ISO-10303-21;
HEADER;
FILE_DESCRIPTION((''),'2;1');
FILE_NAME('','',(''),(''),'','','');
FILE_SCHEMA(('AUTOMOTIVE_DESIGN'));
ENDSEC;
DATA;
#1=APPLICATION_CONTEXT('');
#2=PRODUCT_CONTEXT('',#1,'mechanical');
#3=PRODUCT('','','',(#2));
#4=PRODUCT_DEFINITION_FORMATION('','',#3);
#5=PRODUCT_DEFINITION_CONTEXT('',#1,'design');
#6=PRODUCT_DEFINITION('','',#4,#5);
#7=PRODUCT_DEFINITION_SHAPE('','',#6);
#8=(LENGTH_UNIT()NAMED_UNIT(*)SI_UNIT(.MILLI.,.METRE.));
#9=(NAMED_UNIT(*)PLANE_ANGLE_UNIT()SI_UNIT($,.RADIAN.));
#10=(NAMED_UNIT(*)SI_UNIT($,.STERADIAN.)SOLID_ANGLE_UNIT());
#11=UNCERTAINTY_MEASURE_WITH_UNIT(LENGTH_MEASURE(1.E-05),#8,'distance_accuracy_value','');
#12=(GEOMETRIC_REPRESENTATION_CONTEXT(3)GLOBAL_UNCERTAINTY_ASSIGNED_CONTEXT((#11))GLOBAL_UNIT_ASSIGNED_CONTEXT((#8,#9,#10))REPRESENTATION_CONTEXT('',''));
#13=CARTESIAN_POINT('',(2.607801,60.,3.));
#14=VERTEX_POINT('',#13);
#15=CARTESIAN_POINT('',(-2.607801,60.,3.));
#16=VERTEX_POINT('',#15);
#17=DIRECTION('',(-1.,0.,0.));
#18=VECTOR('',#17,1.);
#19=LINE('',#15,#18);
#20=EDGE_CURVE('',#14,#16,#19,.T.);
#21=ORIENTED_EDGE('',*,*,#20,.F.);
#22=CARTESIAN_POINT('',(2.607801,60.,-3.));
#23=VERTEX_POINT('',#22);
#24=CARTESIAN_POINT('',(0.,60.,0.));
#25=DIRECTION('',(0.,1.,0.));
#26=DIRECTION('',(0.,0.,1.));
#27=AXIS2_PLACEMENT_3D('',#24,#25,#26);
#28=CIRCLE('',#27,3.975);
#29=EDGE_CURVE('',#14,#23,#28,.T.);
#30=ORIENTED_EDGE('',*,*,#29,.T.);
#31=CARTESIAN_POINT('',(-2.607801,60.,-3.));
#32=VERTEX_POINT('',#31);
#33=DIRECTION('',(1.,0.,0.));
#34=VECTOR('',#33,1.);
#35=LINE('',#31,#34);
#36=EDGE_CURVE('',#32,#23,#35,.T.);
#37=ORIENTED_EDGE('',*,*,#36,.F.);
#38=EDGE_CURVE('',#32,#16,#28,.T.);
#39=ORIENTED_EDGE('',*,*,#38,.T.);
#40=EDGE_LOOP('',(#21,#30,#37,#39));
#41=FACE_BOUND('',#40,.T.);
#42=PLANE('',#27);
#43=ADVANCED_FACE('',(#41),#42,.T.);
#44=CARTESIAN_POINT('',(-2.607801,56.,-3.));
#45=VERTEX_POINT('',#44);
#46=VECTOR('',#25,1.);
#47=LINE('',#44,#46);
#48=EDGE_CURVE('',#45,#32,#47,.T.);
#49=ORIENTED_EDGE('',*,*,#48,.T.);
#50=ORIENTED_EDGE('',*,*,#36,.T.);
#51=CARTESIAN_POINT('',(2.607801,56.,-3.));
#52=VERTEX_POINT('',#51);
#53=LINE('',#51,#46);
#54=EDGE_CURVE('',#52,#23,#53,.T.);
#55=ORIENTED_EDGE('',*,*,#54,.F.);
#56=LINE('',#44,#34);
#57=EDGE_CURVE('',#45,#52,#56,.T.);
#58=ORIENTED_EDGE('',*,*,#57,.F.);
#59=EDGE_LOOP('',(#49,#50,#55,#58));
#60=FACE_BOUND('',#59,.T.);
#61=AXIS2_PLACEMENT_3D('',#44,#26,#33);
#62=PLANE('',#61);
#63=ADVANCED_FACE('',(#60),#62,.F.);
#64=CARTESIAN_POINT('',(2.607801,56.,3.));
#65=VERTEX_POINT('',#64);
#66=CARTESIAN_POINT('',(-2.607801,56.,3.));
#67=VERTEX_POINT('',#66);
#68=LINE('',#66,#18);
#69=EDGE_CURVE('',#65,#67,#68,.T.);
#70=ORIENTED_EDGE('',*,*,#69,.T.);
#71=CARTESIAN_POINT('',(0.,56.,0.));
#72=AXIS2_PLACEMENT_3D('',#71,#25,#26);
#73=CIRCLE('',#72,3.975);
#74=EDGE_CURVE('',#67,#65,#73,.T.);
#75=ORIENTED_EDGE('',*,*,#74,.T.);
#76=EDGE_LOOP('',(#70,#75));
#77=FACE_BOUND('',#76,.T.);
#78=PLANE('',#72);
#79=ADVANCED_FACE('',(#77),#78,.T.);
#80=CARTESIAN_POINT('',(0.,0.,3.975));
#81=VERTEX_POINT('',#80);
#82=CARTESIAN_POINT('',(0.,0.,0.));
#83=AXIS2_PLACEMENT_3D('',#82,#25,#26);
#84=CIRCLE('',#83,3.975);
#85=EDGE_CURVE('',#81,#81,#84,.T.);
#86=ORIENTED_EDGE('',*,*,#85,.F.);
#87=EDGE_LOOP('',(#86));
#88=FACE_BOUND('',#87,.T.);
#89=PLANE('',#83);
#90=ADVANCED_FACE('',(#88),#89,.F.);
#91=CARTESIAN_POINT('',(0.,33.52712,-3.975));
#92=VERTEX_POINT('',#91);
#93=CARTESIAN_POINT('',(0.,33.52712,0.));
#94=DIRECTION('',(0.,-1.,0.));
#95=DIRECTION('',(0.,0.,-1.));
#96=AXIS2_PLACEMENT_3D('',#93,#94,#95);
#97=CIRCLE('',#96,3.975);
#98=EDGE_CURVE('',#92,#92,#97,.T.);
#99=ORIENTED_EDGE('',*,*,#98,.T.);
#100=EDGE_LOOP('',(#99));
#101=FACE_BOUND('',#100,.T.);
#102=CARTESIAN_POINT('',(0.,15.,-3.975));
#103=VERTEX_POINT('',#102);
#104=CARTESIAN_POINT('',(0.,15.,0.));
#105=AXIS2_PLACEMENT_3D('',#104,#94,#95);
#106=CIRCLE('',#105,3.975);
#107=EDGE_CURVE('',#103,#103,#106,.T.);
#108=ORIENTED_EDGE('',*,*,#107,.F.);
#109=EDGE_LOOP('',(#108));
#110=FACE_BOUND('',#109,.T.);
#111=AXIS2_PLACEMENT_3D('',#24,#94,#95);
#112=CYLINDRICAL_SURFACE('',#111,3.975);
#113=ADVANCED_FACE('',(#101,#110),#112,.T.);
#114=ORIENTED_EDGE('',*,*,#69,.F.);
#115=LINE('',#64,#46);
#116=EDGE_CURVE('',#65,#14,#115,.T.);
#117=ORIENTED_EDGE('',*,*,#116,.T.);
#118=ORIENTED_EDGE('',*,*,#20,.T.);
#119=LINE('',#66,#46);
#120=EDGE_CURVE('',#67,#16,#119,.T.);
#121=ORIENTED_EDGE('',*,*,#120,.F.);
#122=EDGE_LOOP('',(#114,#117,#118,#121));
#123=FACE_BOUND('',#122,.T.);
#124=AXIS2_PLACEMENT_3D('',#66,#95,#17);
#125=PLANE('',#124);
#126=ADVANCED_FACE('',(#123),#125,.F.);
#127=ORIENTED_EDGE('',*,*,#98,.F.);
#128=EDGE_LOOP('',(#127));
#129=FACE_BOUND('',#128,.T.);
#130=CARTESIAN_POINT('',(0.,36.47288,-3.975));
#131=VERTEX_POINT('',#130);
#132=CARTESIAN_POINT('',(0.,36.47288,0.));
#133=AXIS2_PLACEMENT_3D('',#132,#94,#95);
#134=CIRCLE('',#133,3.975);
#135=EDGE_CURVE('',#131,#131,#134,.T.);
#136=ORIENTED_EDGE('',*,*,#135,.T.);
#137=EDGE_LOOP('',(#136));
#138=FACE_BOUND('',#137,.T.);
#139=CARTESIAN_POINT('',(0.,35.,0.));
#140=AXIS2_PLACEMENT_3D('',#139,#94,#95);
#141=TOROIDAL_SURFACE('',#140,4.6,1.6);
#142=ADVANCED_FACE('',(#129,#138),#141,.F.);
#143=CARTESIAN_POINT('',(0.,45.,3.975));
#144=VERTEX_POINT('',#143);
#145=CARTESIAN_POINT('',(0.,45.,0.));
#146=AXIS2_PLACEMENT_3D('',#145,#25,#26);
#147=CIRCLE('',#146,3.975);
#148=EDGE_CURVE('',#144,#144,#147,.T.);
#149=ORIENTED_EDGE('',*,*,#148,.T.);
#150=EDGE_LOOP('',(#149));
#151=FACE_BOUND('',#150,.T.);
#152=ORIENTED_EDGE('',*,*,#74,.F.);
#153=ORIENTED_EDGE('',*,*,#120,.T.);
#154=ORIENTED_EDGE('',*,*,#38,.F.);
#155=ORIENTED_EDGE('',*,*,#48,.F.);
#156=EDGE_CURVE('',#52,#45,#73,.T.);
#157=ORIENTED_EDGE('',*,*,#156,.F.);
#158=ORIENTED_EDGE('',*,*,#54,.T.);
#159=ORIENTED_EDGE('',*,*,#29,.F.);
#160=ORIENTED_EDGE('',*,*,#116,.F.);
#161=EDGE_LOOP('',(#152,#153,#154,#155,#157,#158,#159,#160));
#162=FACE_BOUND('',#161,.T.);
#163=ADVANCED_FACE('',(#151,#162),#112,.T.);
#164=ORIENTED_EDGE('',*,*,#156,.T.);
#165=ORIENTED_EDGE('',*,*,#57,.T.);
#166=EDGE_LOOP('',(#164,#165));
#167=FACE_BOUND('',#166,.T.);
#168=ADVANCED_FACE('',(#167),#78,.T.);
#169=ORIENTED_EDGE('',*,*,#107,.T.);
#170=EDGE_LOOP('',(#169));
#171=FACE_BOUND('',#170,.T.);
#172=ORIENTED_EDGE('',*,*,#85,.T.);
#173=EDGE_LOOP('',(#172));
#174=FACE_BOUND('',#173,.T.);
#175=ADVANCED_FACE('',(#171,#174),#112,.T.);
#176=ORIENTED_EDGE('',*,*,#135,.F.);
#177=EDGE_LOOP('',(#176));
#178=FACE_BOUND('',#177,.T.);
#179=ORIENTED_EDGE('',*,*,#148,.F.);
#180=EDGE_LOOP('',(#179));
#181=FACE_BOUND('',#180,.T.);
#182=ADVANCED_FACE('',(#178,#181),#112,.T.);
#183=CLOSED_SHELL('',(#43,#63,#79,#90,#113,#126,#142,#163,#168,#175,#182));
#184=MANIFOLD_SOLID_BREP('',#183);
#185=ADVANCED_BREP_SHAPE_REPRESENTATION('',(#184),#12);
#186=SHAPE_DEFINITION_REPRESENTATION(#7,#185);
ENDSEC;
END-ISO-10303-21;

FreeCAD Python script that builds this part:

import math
import FreeCAD as App
import Part
import Sketcher
from FreeCAD import Vector
Q = App.Units.Quantity

doc = App.newDocument("Part")
body = doc.addObject("PartDesign::Body", "Body")

sketch1 = body.newObject("Sketcher::SketchObject", "Sketch")
sketch1.AttachmentSupport = (doc.getObject("XZ_Plane"), [""])
sketch1.MapMode = "FlatFace"
sketch1.addGeometry(Part.Circle(Vector(0, 0, 0), Vector(0, 0, 1), 4), False)
sketch1.addConstraint([
    Sketcher.Constraint("Coincident", 0, 3, -1, 1),
    Sketcher.Constraint("Diameter", 0, Q("7.95 mm")),
])
pad1 = body.newObject("PartDesign::Pad", "Pad")
pad1.Profile = sketch1
pad1.Length = 60
pad1.Reversed = True

sketch2 = body.newObject("Sketcher::SketchObject", "Sketch001")
sketch2.AttachmentSupport = (doc.getObject("XY_Plane"), [""])
sketch2.MapMode = "FlatFace"
sketch2.addGeometry([
    Part.LineSegment(Vector(4, 33.5, 0), Vector(4, 36.5, 0)),
    Part.ArcOfCircle(Part.Circle(Vector(4.6, 35, 0), Vector(0, 0, 1), 1.6), math.radians(113), math.radians(247)),
], False)
sketch2.addConstraint([
    Sketcher.Constraint("Coincident", 0, 1, 1, 2),
    Sketcher.Constraint("Coincident", 1, 1, 0, 2),
    Sketcher.Constraint("Vertical", 0),
    Sketcher.Constraint("Radius", 1, Q("1.6 mm")),
    Sketcher.Constraint("DistanceY", -1, 1, 1, 3, Q("35 mm")),
    Sketcher.Constraint("DistanceX", -1, 1, 1, 3, Q("4.6 mm")),
    Sketcher.Constraint("DistanceX", -1, 1, 0, 1, Q("3.975 mm")),
])
groove = body.newObject("PartDesign::Groove", "Groove")
groove.Profile = sketch2
groove.ReferenceAxis = (sketch2, ["V_Axis"])
groove.Angle = 360

sketch3 = body.newObject("Sketcher::SketchObject", "Sketch002")
sketch3.AttachmentSupport = (doc.getObject("XZ_Plane"), [""])
sketch3.MapMode = "FlatFace"
sketch3.AttachmentOffset = App.Placement(Vector(0, 0, -56), App.Rotation())
sketch3.addGeometry([
    Part.LineSegment(Vector(-2.6, -3, 0), Vector(2.6, -3, 0)),
    Part.ArcOfCircle(Part.Circle(Vector(0, 0, 0), Vector(0, 0, 1), 4), math.radians(-131), math.radians(-49)),
    Part.LineSegment(Vector(2.6, 3, 0), Vector(-2.6, 3, 0)),
    Part.ArcOfCircle(Part.Circle(Vector(0, 0, 0), Vector(0, 0, 1), 4), math.radians(49), math.radians(131)),
], False)
sketch3.addConstraint([
    Sketcher.Constraint("Coincident", 0, 1, 1, 1),
    Sketcher.Constraint("Coincident", 1, 2, 0, 2),
    Sketcher.Constraint("Coincident", 2, 1, 3, 1),
    Sketcher.Constraint("Coincident", 3, 2, 2, 2),
    Sketcher.Constraint("Horizontal", 0),
    Sketcher.Constraint("Horizontal", 2),
    Sketcher.Constraint("Coincident", 1, 3, -1, 1),
    Sketcher.Constraint("Coincident", 3, 3, -1, 1),
    Sketcher.Constraint("Equal", 1, 3),
    Sketcher.Constraint("Vertical", 1, 2, 2, 1),
    Sketcher.Constraint("DistanceY", 0, 1, -1, 1, Q("3 mm")),
    Sketcher.Constraint("Radius", 1, Q("3.975 mm")),
])
pocket1 = body.newObject("PartDesign::Pocket", "Pocket")
pocket1.Profile = sketch3
pocket1.Length = 4

doc.recompute()
